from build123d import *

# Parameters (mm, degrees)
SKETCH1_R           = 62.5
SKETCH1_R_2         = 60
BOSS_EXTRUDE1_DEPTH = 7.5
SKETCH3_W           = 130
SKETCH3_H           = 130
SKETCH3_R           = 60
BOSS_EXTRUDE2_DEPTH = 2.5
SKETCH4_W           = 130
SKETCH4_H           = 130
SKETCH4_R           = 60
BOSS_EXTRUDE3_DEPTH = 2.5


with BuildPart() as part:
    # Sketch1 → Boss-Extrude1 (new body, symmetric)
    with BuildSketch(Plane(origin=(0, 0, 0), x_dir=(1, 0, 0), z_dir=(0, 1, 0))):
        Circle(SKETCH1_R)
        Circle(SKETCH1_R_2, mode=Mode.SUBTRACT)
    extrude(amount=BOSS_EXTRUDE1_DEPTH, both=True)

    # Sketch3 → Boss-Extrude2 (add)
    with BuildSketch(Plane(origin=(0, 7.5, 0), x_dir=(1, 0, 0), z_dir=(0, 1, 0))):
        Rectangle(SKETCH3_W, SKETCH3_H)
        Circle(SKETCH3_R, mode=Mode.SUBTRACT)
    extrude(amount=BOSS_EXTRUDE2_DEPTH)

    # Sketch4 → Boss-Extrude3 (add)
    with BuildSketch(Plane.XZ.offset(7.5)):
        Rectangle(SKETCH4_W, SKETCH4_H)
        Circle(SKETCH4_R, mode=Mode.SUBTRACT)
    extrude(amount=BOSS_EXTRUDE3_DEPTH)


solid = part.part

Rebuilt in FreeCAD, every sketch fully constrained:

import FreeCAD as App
import Part
import Sketcher
from FreeCAD import Vector
Q = App.Units.Quantity


def add_polygon(sketch, points):
    """Adds a closed chain of lines whose ends are joined by coincident constraints."""
    first, n = sketch.GeometryCount, len(points)
    for a, b in zip(points, points[1:] + points[:1]):
        sketch.addGeometry(Part.LineSegment(App.Vector(*a, 0), App.Vector(*b, 0)), False)
    for i in range(n):
        sketch.addConstraint(Sketcher.Constraint("Coincident", first + i, 2, first + (i + 1) % n, 1))

doc = App.newDocument("Part")
body = doc.addObject("PartDesign::Body", "Body")

sketch1 = doc.addObject("Sketcher::SketchObject", "Sketch")
body.addObject(sketch1)
sketch1.AttachmentSupport = (doc.XZ_Plane, [""])
sketch1.MapMode = "FlatFace"
sketch1.addGeometry([
    Part.Circle(Vector(0, 0, 0), Vector(0, 0, 1), 62),
    Part.Circle(Vector(0, 0, 0), Vector(0, 0, 1), 60),
], False)
sketch1.addConstraint([
    Sketcher.Constraint("Coincident", 0, 3, -1, 1),
    Sketcher.Constraint("Coincident", 1, 3, -1, 1),
    Sketcher.Constraint("Diameter", 0, Q("125 mm")),
    Sketcher.Constraint("Diameter", 1, Q("120 mm")),
])
pad1 = doc.addObject("PartDesign::Pad", "Pad")
body.addObject(pad1)
pad1.Profile = sketch1
pad1.Length = 15
pad1.Midplane = True

sketch2 = doc.addObject("Sketcher::SketchObject", "Sketch001")
body.addObject(sketch2)
sketch2.AttachmentSupport = (doc.XZ_Plane, [""])
sketch2.MapMode = "FlatFace"
sketch2.AttachmentOffset = App.Placement(Vector(0, 0, -7.5), App.Rotation())
add_polygon(sketch2, [(-65, -65), (-65, 65), (65, 65), (65, -65)])
sketch2.addGeometry(Part.Circle(Vector(0, 0, 0), Vector(0, 0, 1), 60), False)
sketch2.addConstraint([
    Sketcher.Constraint("Vertical", 0),
    Sketcher.Constraint("Horizontal", 1),
    Sketcher.Constraint("Vertical", 2),
    Sketcher.Constraint("Horizontal", 3),
    Sketcher.Constraint("Coincident", 4, 3, -1, 1),
    Sketcher.Constraint("Symmetric", 0, 2, 2, 2, -1, 1),
    Sketcher.Constraint("Equal", 3, 0),
    Sketcher.Constraint("Diameter", 4, Q("120 mm")),
    Sketcher.Constraint("DistanceX", 1, 1, 1, 2, Q("130 mm")),
])
pad2 = doc.addObject("PartDesign::Pad", "Pad001")
body.addObject(pad2)
pad2.Profile = sketch2
pad2.Length = 2.5
pad2.Reversed = True

sketch3 = doc.addObject("Sketcher::SketchObject", "Sketch002")
body.addObject(sketch3)
sketch3.AttachmentSupport = (doc.XZ_Plane, [""])
sketch3.MapMode = "FlatFace"
sketch3.AttachmentOffset = App.Placement(Vector(0, 0, 7.5), App.Rotation())
add_polygon(sketch3, [(-65, 65), (-65, -65), (65, -65), (65, 65)])
sketch3.addGeometry(Part.Circle(Vector(0, 0, 0), Vector(0, 0, 1), 60), False)
sketch3.addConstraint([
    Sketcher.Constraint("Vertical", 0),
    Sketcher.Constraint("Horizontal", 1),
    Sketcher.Constraint("Vertical", 2),
    Sketcher.Constraint("Horizontal", 3),
    Sketcher.Constraint("Coincident", 4, 3, -1, 1),
    Sketcher.Constraint("Symmetric", 0, 2, 2, 2, -1, 1),
    Sketcher.Constraint("Equal", 3, 0),
    Sketcher.Constraint("Diameter", 4, Q("120 mm")),
    Sketcher.Constraint("DistanceX", 1, 1, 1, 2, Q("130 mm")),
])
pad3 = doc.addObject("PartDesign::Pad", "Pad002")
body.addObject(pad3)
pad3.Profile = sketch3
pad3.Length = 2.5

doc.recompute()
